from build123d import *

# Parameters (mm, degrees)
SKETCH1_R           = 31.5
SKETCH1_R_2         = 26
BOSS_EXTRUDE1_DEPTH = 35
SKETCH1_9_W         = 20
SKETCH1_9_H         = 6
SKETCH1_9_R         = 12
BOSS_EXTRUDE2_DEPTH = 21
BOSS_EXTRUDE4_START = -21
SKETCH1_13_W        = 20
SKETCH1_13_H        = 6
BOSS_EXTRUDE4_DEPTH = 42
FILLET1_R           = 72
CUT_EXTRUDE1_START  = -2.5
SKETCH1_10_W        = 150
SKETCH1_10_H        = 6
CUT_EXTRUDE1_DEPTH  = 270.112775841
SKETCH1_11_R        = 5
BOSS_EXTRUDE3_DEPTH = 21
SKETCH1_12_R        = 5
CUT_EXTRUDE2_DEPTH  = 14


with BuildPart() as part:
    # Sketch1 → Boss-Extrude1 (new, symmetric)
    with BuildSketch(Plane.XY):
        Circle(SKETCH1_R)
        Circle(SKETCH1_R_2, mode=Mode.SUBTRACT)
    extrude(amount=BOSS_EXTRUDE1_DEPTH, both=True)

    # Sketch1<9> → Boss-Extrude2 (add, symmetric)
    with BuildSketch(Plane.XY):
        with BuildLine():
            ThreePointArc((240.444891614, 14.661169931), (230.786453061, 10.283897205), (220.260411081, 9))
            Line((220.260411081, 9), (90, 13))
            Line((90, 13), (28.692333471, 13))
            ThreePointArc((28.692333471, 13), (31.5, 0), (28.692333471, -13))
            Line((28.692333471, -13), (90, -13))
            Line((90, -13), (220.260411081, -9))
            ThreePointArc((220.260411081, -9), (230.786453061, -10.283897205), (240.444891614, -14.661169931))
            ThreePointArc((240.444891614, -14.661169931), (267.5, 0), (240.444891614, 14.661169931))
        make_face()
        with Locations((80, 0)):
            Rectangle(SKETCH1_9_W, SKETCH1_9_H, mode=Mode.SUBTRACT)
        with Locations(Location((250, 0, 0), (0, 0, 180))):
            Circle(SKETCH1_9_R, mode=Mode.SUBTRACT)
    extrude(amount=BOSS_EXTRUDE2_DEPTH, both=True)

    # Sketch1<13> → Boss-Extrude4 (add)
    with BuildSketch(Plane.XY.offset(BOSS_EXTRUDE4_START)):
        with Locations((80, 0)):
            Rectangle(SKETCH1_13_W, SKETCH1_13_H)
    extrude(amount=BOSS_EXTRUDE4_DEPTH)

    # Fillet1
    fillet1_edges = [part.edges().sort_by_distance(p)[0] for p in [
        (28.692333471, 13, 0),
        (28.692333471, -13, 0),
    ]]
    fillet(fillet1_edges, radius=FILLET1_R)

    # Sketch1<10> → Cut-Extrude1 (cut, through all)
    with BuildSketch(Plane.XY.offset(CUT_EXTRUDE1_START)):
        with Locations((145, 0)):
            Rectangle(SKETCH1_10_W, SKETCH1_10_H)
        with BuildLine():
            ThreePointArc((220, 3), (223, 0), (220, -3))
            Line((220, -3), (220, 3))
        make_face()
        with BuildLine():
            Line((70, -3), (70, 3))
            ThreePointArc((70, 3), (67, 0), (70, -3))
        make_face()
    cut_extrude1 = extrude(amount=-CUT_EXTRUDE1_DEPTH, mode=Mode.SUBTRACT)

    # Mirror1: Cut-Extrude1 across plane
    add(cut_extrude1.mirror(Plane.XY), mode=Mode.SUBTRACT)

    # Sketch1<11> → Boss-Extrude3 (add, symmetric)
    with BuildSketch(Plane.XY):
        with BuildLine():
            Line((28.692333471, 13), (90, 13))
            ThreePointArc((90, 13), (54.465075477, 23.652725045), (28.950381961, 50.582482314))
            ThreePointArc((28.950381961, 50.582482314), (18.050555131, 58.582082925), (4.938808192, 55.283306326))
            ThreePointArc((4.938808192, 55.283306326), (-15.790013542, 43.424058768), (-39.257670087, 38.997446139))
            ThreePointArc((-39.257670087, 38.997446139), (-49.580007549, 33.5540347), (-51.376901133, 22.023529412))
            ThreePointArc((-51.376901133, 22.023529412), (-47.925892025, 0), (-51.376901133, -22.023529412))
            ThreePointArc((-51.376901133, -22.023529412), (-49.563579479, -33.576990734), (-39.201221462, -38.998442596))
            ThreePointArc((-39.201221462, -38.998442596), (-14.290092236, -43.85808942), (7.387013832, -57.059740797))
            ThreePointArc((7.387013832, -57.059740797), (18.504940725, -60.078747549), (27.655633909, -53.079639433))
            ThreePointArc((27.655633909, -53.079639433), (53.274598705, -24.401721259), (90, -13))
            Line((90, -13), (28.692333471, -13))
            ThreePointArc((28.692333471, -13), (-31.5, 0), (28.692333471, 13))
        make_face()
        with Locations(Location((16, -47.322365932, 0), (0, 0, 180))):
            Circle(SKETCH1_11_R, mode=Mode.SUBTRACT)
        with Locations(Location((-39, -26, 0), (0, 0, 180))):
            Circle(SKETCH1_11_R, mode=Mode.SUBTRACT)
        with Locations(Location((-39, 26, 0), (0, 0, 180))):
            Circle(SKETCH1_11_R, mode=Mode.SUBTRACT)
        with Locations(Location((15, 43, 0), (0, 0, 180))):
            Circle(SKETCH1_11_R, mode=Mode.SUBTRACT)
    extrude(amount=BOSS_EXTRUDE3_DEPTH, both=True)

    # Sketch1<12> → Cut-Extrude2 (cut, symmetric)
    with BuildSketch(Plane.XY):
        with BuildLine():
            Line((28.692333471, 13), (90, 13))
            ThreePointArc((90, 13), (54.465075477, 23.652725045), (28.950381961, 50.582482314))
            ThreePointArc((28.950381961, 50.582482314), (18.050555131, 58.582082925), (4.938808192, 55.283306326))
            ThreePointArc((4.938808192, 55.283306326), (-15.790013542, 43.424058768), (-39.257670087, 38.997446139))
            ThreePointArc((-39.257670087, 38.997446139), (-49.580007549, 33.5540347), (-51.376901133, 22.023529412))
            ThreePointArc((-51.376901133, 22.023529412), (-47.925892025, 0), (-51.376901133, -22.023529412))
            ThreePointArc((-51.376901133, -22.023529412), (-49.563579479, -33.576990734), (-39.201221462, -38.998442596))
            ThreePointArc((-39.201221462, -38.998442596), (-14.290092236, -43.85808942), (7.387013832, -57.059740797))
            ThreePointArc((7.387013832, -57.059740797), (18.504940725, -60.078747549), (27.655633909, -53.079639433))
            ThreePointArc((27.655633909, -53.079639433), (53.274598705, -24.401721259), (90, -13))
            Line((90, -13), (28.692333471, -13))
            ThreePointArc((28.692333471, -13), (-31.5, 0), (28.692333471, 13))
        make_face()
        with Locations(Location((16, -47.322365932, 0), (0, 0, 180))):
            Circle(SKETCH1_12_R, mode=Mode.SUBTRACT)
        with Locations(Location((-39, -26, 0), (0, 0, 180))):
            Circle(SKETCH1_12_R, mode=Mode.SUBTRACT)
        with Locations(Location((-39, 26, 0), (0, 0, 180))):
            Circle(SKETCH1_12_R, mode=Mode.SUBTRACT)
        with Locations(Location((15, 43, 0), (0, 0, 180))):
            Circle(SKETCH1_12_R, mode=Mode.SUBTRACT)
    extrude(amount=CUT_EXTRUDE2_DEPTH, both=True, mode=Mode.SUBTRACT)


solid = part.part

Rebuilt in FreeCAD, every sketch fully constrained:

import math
import FreeCAD as App
import Part
import Sketcher
from FreeCAD import Vector


def edges_at(feature, points):
    """Names of the edges that pass closest to the given points."""
    edges = feature.Shape.Edges
    near = lambda p: min(range(len(edges)), key=lambda i: edges[i].distToShape(Part.Vertex(*p))[0])
    return sorted({f"Edge{near(p) + 1}" for p in points})


def add_polygon(sketch, points):
    """Adds a closed chain of lines whose ends are joined by coincident constraints."""
    first, n = sketch.GeometryCount, len(points)
    for a, b in zip(points, points[1:] + points[:1]):
        sketch.addGeometry(Part.LineSegment(App.Vector(*a, 0), App.Vector(*b, 0)), False)
    for i in range(n):
        sketch.addConstraint(Sketcher.Constraint("Coincident", first + i, 2, first + (i + 1) % n, 1))

doc = App.newDocument("Part")
body = doc.addObject("PartDesign::Body", "Body")

# Sketch on XY plane
sketch1 = doc.addObject("Sketcher::SketchObject", "Sketch")
body.addObject(sketch1)
sketch1.AttachmentSupport = (doc.XY_Plane, [""])
sketch1.MapMode = "FlatFace"
sketch1.addGeometry(Part.Circle(Vector(0, 0, 0), Vector(0, 0, 1), 32), False)
sketch1.addGeometry(Part.Circle(Vector(0, 0, 0), Vector(0, 0, 1), 26), False)
sketch1.addConstraint(Sketcher.Constraint("Coincident", 0, 3, -1, 1))
sketch1.addConstraint(Sketcher.Constraint("Coincident", 1, 3, -1, 1))
sketch1.addConstraint(Sketcher.Constraint("Diameter", 0, 63.0))
sketch1.addConstraint(Sketcher.Constraint("Diameter", 1, 52.0))
pad1 = doc.addObject("PartDesign::Pad", "Pad")
body.addObject(pad1)
pad1.Profile = sketch1
pad1.Length = 70
pad1.Midplane = True

# Sketch on XY plane
sketch2 = doc.addObject("Sketcher::SketchObject", "Sketch001")
body.addObject(sketch2)
sketch2.AttachmentSupport = (doc.XY_Plane, [""])
sketch2.MapMode = "FlatFace"
sketch2.addGeometry(Part.ArcOfCircle(Part.Circle(Vector(221, 44, 0), Vector(0, 0, 1), 35), math.radians(-92), math.radians(-57)), False)  # 0
sketch2.addGeometry(Part.LineSegment(Vector(220, 9, 0), Vector(90, 13, 0)), False)  # 1
sketch2.addGeometry(Part.LineSegment(Vector(90, 13, 0), Vector(29, 13, 0)), False)  # 2
sketch2.addGeometry(Part.ArcOfCircle(Part.Circle(Vector(0, 0, 0), Vector(0, 0, 1), 32), math.radians(-24), math.radians(24)), False)  # 3
sketch2.addGeometry(Part.LineSegment(Vector(29, -13, 0), Vector(90, -13, 0)), False)  # 4
sketch2.addGeometry(Part.LineSegment(Vector(90, -13, 0), Vector(220, -9, 0)), False)  # 5
sketch2.addGeometry(Part.ArcOfCircle(Part.Circle(Vector(221, -44, 0), Vector(0, 0, 1), 35), math.radians(57), math.radians(92)), False)  # 6
sketch2.addGeometry(Part.ArcOfCircle(Part.Circle(Vector(250, 0, 0), Vector(0, 0, 1), 18), math.radians(-123), math.radians(123)), False)  # 7
add_polygon(sketch2, [(90, -3), (70, -3), (70, 3), (90, 3)])  # lines 8-11
sketch2.addGeometry(Part.Circle(Vector(250, 0, 0), Vector(0, 0, 1), 12), False)  # 12
sketch2.addConstraint(Sketcher.Constraint("Tangent", 0, 1, 1, 1))
sketch2.addConstraint(Sketcher.Constraint("Coincident", 1, 2, 2, 1))
sketch2.addConstraint(Sketcher.Constraint("Coincident", 2, 2, 3, 2))
sketch2.addConstraint(Sketcher.Constraint("Coincident", 3, 1, 4, 1))
sketch2.addConstraint(Sketcher.Constraint("Coincident", 4, 2, 5, 1))
sketch2.addConstraint(Sketcher.Constraint("Tangent", 5, 2, 6, 2))
sketch2.addConstraint(Sketcher.Constraint("Tangent", 6, 1, 7, 1))
sketch2.addConstraint(Sketcher.Constraint("Tangent", 7, 2, 0, 2))
sketch2.addConstraint(Sketcher.Constraint("Horizontal", 2))
sketch2.addConstraint(Sketcher.Constraint("Horizontal", 4))
sketch2.addConstraint(Sketcher.Constraint("Horizontal", 8))
sketch2.addConstraint(Sketcher.Constraint("Vertical", 9))
sketch2.addConstraint(Sketcher.Constraint("Horizontal", 10))
sketch2.addConstraint(Sketcher.Constraint("Vertical", 11))
sketch2.addConstraint(Sketcher.Constraint("Coincident", 3, 3, -1, 1))
sketch2.addConstraint(Sketcher.Constraint("Coincident", 12, 3, 7, 3))
sketch2.addConstraint(Sketcher.Constraint("Equal", 0, 6))
sketch2.addConstraint(Sketcher.Constraint("Symmetric", 0, 3, 6, 3, -1))
sketch2.addConstraint(Sketcher.Constraint("Symmetric", 1, 2, 4, 2, -1))
sketch2.addConstraint(Sketcher.Constraint("Vertical", 4, 2, 10, 2))
sketch2.addConstraint(Sketcher.Constraint("Diameter", 12, 24.0))
sketch2.addConstraint(Sketcher.Constraint("Radius", 0, 35.0))
sketch2.addConstraint(Sketcher.Constraint("Radius", 3, 31.5))
sketch2.addConstraint(Sketcher.Constraint("Radius", 7, 17.5))
sketch2.addConstraint(Sketcher.Constraint("DistanceX", 8, 2, 8, 1, 20.0))
sketch2.addConstraint(Sketcher.Constraint("DistanceY", 9, 1, 9, 2, 6.0))
sketch2.addConstraint(Sketcher.Constraint("DistanceX", -1, 1, 7, 3, 250.0))
sketch2.addConstraint(Sketcher.Constraint("DistanceY", -1, 1, 0, 1, 9.0))
sketch2.addConstraint(Sketcher.Constraint("DistanceX", -1, 1, 1, 2, 90.0))
sketch2.addConstraint(Sketcher.Constraint("DistanceY", -1, 1, 1, 2, 13.0))
sketch2.addConstraint(Sketcher.Constraint("DistanceY", 8, 2, -1, 1, 3.0))
pad2 = doc.addObject("PartDesign::Pad", "Pad001")
body.addObject(pad2)
pad2.Profile = sketch2
pad2.Length = 42
pad2.Midplane = True

# Sketch on XY plane
sketch3 = doc.addObject("Sketcher::SketchObject", "Sketch002")
body.addObject(sketch3)
sketch3.AttachmentSupport = (doc.XY_Plane, [""])
sketch3.MapMode = "FlatFace"
sketch3.AttachmentOffset = App.Placement(Vector(0, 0, -21), App.Rotation())
add_polygon(sketch3, [(70, 3), (70, -3), (90, -3), (90, 3)])  # lines 0-3
sketch3.addConstraint(Sketcher.Constraint("Vertical", 0))
sketch3.addConstraint(Sketcher.Constraint("Horizontal", 1))
sketch3.addConstraint(Sketcher.Constraint("Vertical", 2))
sketch3.addConstraint(Sketcher.Constraint("Horizontal", 3))
sketch3.addConstraint(Sketcher.Constraint("DistanceX", 1, 1, 1, 2, 20.0))
sketch3.addConstraint(Sketcher.Constraint("DistanceY", 0, 2, 0, 1, 6.0))
sketch3.addConstraint(Sketcher.Constraint("DistanceX", -1, 1, 0, 2, 70.0))
sketch3.addConstraint(Sketcher.Constraint("DistanceY", 0, 2, -1, 1, 3.0))
pad3 = doc.addObject("PartDesign::Pad", "Pad002")
body.addObject(pad3)
pad3.Profile = sketch3
pad3.Length = 42
doc.recompute()

fillet = doc.addObject("PartDesign::Fillet", "Fillet")
body.addObject(fillet)
fillet.Base = (pad3, edges_at(pad3, [(28.692, 13, 0), (28.692, -13, 0)]))
fillet.Radius = 72

# Sketch on XY plane
sketch4 = doc.addObject("Sketcher::SketchObject", "Sketch003")
body.addObject(sketch4)
sketch4.AttachmentSupport = (doc.XY_Plane, [""])
sketch4.MapMode = "FlatFace"
sketch4.AttachmentOffset = App.Placement(Vector(0, 0, -2.5), App.Rotation())
sketch4.addGeometry(Part.LineSegment(Vector(70, -3, 0), Vector(220, -3, 0)), False)
sketch4.addGeometry(Part.ArcOfCircle(Part.Circle(Vector(220, 0, 0), Vector(0, 0, 1), 3), math.radians(-90), math.radians(90)), False)
sketch4.addGeometry(Part.LineSegment(Vector(220, 3, 0), Vector(70, 3, 0)), False)
sketch4.addGeometry(Part.ArcOfCircle(Part.Circle(Vector(70, 0, 0), Vector(0, 0, 1), 3), math.radians(90), math.radians(270)), False)
sketch4.addConstraint(Sketcher.Constraint("Tangent", 0, 2, 1, 1))
sketch4.addConstraint(Sketcher.Constraint("Tangent", 1, 2, 2, 1))
sketch4.addConstraint(Sketcher.Constraint("Tangent", 2, 2, 3, 1))
sketch4.addConstraint(Sketcher.Constraint("Tangent", 3, 2, 0, 1))
sketch4.addConstraint(Sketcher.Constraint("Horizontal", 0))
sketch4.addConstraint(Sketcher.Constraint("Horizontal", 2))
sketch4.addConstraint(Sketcher.Constraint("PointOnObject", 1, 3, -1))
sketch4.addConstraint(Sketcher.Constraint("Radius", 1, 3.0))
sketch4.addConstraint(Sketcher.Constraint("DistanceX", 0, 1, 0, 2, 150.0))
sketch4.addConstraint(Sketcher.Constraint("DistanceX", -1, 1, 1, 3, 220.0))
pocket1 = doc.addObject("PartDesign::Pocket", "Pocket")
body.addObject(pocket1)
pocket1.Profile = sketch4
pocket1.Type = "ThroughAll"
doc.recompute()

mirrored = doc.addObject("PartDesign::Mirrored", "Mirrored")
body.addObject(mirrored)
mirrored.Originals = [pocket1]
mirrored.MirrorPlane = (doc.XY_Plane, [""])
body.Tip = mirrored

# Sketch on XY plane
sketch5 = doc.addObject("Sketcher::SketchObject", "Sketch004")
body.addObject(sketch5)
sketch5.AttachmentSupport = (doc.XY_Plane, [""])
sketch5.MapMode = "FlatFace"
sketch5.addGeometry(Part.LineSegment(Vector(29, 13, 0), Vector(90, 13, 0)), False)
sketch5.addGeometry(Part.ArcOfCircle(Part.Circle(Vector(92, 85, 0), Vector(0, 0, 1), 72), math.radians(-151), math.radians(-92)), False)
sketch5.addGeometry(Part.ArcOfCircle(Part.Circle(Vector(15, 43, 0), Vector(0, 0, 1), 16), math.radians(29), math.radians(129)), False)
sketch5.addGeometry(Part.ArcOfCircle(Part.Circle(Vector(-41, 111, 0), Vector(0, 0, 1), 72), math.radians(-89), math.radians(-51)), False)
sketch5.addGeometry(Part.ArcOfCircle(Part.Circle(Vector(-39, 26, 0), Vector(0, 0, 1), 13), math.radians(91), math.radians(198)), False)
sketch5.addGeometry(Part.ArcOfCircle(Part.Circle(Vector(-120, 0, 0), Vector(0, 0, 1), 72), math.radians(-18), math.radians(18)), False)
sketch5.addGeometry(Part.ArcOfCircle(Part.Circle(Vector(-39, -26, 0), Vector(0, 0, 1), 13), math.radians(162), math.radians(269)), False)
sketch5.addGeometry(Part.ArcOfCircle(Part.Circle(Vector(-40, -111, 0), Vector(0, 0, 1), 72), math.radians(49), math.radians(89)), False)
sketch5.addGeometry(Part.ArcOfCircle(Part.Circle(Vector(16, -47, 0), Vector(0, 0, 1), 13), math.radians(-131), math.radians(-26)), False)
sketch5.addGeometry(Part.ArcOfCircle(Part.Circle(Vector(92, -85, 0), Vector(0, 0, 1), 72), math.radians(92), math.radians(154)), False)
sketch5.addGeometry(Part.LineSegment(Vector(90, -13, 0), Vector(29, -13, 0)), False)
sketch5.addGeometry(Part.ArcOfCircle(Part.Circle(Vector(0, 0, 0), Vector(0, 0, 1), 32), math.radians(24), math.radians(336)), False)
sketch5.addGeometry(Part.Circle(Vector(-39, -26, 0), Vector(0, 0, 1), 5), False)
sketch5.addGeometry(Part.Circle(Vector(16, -47, 0), Vector(0, 0, 1), 5), False)
sketch5.addGeometry(Part.Circle(Vector(-39, 26, 0), Vector(0, 0, 1), 5), False)
sketch5.addGeometry(Part.Circle(Vector(15, 43, 0), Vector(0, 0, 1), 5), False)
sketch5.addConstraint(Sketcher.Constraint("Coincident", 0, 2, 1, 2))
sketch5.addConstraint(Sketcher.Constraint("Tangent", 1, 1, 2, 1))
sketch5.addConstraint(Sketcher.Constraint("Tangent", 2, 2, 3, 2))
sketch5.addConstraint(Sketcher.Constraint("Tangent", 3, 1, 4, 1))
sketch5.addConstraint(Sketcher.Constraint("Tangent", 4, 2, 5, 2))
sketch5.addConstraint(Sketcher.Constraint("Tangent", 5, 1, 6, 1))
sketch5.addConstraint(Sketcher.Constraint("Tangent", 6, 2, 7, 2))
sketch5.addConstraint(Sketcher.Constraint("Tangent", 7, 1, 8, 1))
sketch5.addConstraint(Sketcher.Constraint("Tangent", 8, 2, 9, 2))
sketch5.addConstraint(Sketcher.Constraint("Coincident", 9, 1, 10, 1))
sketch5.addConstraint(Sketcher.Constraint("Coincident", 10, 2, 11, 2))
sketch5.addConstraint(Sketcher.Constraint("Coincident", 11, 1, 0, 1))
sketch5.addConstraint(Sketcher.Constraint("Horizontal", 0))
sketch5.addConstraint(Sketcher.Constraint("Horizontal", 10))
sketch5.addConstraint(Sketcher.Constraint("Coincident", 11, 3, -1, 1))
sketch5.addConstraint(Sketcher.Constraint("Coincident", 12, 3, 6, 3))
sketch5.addConstraint(Sketcher.Constraint("Coincident", 13, 3, 8, 3))
sketch5.addConstraint(Sketcher.Constraint("Coincident", 14, 3, 4, 3))
sketch5.addConstraint(Sketcher.Constraint("Coincident", 15, 3, 2, 3))
sketch5.addConstraint(Sketcher.Constraint("Equal", 1, 3))
sketch5.addConstraint(Sketcher.Constraint("Equal", 3, 5))
sketch5.addConstraint(Sketcher.Constraint("Equal", 4, 6))
sketch5.addConstraint(Sketcher.Constraint("Equal", 5, 7))
sketch5.addConstraint(Sketcher.Constraint("Equal", 6, 8))
sketch5.addConstraint(Sketcher.Constraint("Equal", 7, 9))
sketch5.addConstraint(Sketcher.Constraint("Equal", 12, 13))
sketch5.addConstraint(Sketcher.Constraint("Equal", 13, 14))
sketch5.addConstraint(Sketcher.Constraint("Equal", 14, 15))
sketch5.addConstraint(Sketcher.Constraint("Symmetric", 4, 3, 6, 3, -1))
sketch5.addConstraint(Sketcher.Constraint("Symmetric", 1, 3, 9, 3, -1))
sketch5.addConstraint(Sketcher.Constraint("Vertical", 0, 2, 9, 1))
sketch5.addConstraint(Sketcher.Constraint("Diameter", 12, 10.0))
sketch5.addConstraint(Sketcher.Constraint("Radius", 1, 72.0))
sketch5.addConstraint(Sketcher.Constraint("Radius", 4, 13.0))
sketch5.addConstraint(Sketcher.Constraint("Radius", 11, 31.5))
sketch5.addConstraint(Sketcher.Constraint("DistanceX", -1, 1, 2, 3, 15.0))
sketch5.addConstraint(Sketcher.Constraint("DistanceY", -1, 1, 2, 3, 43.0))
sketch5.addConstraint(Sketcher.Constraint("DistanceX", 4, 3, -1, 1, 39.0))
sketch5.addConstraint(Sketcher.Constraint("DistanceY", -1, 1, 4, 3, 26.0))
sketch5.addConstraint(Sketcher.Constraint("DistanceX", -1, 1, 8, 3, 16.0))
sketch5.addConstraint(Sketcher.Constraint("DistanceX", -1, 1, 0, 2, 90.0))
sketch5.addConstraint(Sketcher.Constraint("DistanceY", -1, 1, 0, 2, 13.0))
sketch5.addConstraint(Sketcher.Constraint("Radius", 2, 15.877884))
pad4 = doc.addObject("PartDesign::Pad", "Pad003")
body.addObject(pad4)
pad4.Profile = sketch5
pad4.Length = 42
pad4.Midplane = True

# Sketch on XY plane
sketch6 = doc.addObject("Sketcher::SketchObject", "Sketch005")
body.addObject(sketch6)
sketch6.AttachmentSupport = (doc.XY_Plane, [""])
sketch6.MapMode = "FlatFace"
sketch6.addGeometry(Part.LineSegment(Vector(29, 13, 0), Vector(90, 13, 0)), False)
sketch6.addGeometry(Part.ArcOfCircle(Part.Circle(Vector(92, 85, 0), Vector(0, 0, 1), 72), math.radians(-151), math.radians(-92)), False)
sketch6.addGeometry(Part.ArcOfCircle(Part.Circle(Vector(15, 43, 0), Vector(0, 0, 1), 16), math.radians(29), math.radians(129)), False)
sketch6.addGeometry(Part.ArcOfCircle(Part.Circle(Vector(-41, 111, 0), Vector(0, 0, 1), 72), math.radians(-89), math.radians(-51)), False)
sketch6.addGeometry(Part.ArcOfCircle(Part.Circle(Vector(-39, 26, 0), Vector(0, 0, 1), 13), math.radians(91), math.radians(198)), False)
sketch6.addGeometry(Part.ArcOfCircle(Part.Circle(Vector(-120, 0, 0), Vector(0, 0, 1), 72), math.radians(-18), math.radians(18)), False)
sketch6.addGeometry(Part.ArcOfCircle(Part.Circle(Vector(-39, -26, 0), Vector(0, 0, 1), 13), math.radians(162), math.radians(269)), False)
sketch6.addGeometry(Part.ArcOfCircle(Part.Circle(Vector(-40, -111, 0), Vector(0, 0, 1), 72), math.radians(49), math.radians(89)), False)
sketch6.addGeometry(Part.ArcOfCircle(Part.Circle(Vector(16, -47, 0), Vector(0, 0, 1), 13), math.radians(-131), math.radians(-26)), False)
sketch6.addGeometry(Part.ArcOfCircle(Part.Circle(Vector(92, -85, 0), Vector(0, 0, 1), 72), math.radians(92), math.radians(154)), False)
sketch6.addGeometry(Part.LineSegment(Vector(90, -13, 0), Vector(29, -13, 0)), False)
sketch6.addGeometry(Part.ArcOfCircle(Part.Circle(Vector(0, 0, 0), Vector(0, 0, 1), 32), math.radians(24), math.radians(336)), False)
sketch6.addGeometry(Part.Circle(Vector(-39, -26, 0), Vector(0, 0, 1), 5), False)
sketch6.addGeometry(Part.Circle(Vector(16, -47, 0), Vector(0, 0, 1), 5), False)
sketch6.addGeometry(Part.Circle(Vector(-39, 26, 0), Vector(0, 0, 1), 5), False)
sketch6.addGeometry(Part.Circle(Vector(15, 43, 0), Vector(0, 0, 1), 5), False)
sketch6.addConstraint(Sketcher.Constraint("Coincident", 0, 2, 1, 2))
sketch6.addConstraint(Sketcher.Constraint("Tangent", 1, 1, 2, 1))
sketch6.addConstraint(Sketcher.Constraint("Tangent", 2, 2, 3, 2))
sketch6.addConstraint(Sketcher.Constraint("Tangent", 3, 1, 4, 1))
sketch6.addConstraint(Sketcher.Constraint("Tangent", 4, 2, 5, 2))
sketch6.addConstraint(Sketcher.Constraint("Tangent", 5, 1, 6, 1))
sketch6.addConstraint(Sketcher.Constraint("Tangent", 6, 2, 7, 2))
sketch6.addConstraint(Sketcher.Constraint("Tangent", 7, 1, 8, 1))
sketch6.addConstraint(Sketcher.Constraint("Tangent", 8, 2, 9, 2))
sketch6.addConstraint(Sketcher.Constraint("Coincident", 9, 1, 10, 1))
sketch6.addConstraint(Sketcher.Constraint("Coincident", 10, 2, 11, 2))
sketch6.addConstraint(Sketcher.Constraint("Coincident", 11, 1, 0, 1))
sketch6.addConstraint(Sketcher.Constraint("Horizontal", 0))
sketch6.addConstraint(Sketcher.Constraint("Horizontal", 10))
sketch6.addConstraint(Sketcher.Constraint("Coincident", 11, 3, -1, 1))
sketch6.addConstraint(Sketcher.Constraint("Coincident", 12, 3, 6, 3))
sketch6.addConstraint(Sketcher.Constraint("Coincident", 13, 3, 8, 3))
sketch6.addConstraint(Sketcher.Constraint("Coincident", 14, 3, 4, 3))
sketch6.addConstraint(Sketcher.Constraint("Coincident", 15, 3, 2, 3))
sketch6.addConstraint(Sketcher.Constraint("Equal", 1, 3))
sketch6.addConstraint(Sketcher.Constraint("Equal", 3, 5))
sketch6.addConstraint(Sketcher.Constraint("Equal", 4, 6))
sketch6.addConstraint(Sketcher.Constraint("Equal", 5, 7))
sketch6.addConstraint(Sketcher.Constraint("Equal", 6, 8))
sketch6.addConstraint(Sketcher.Constraint("Equal", 7, 9))
sketch6.addConstraint(Sketcher.Constraint("Equal", 12, 13))
sketch6.addConstraint(Sketcher.Constraint("Equal", 13, 14))
sketch6.addConstraint(Sketcher.Constraint("Equal", 14, 15))
sketch6.addConstraint(Sketcher.Constraint("Symmetric", 4, 3, 6, 3, -1))
sketch6.addConstraint(Sketcher.Constraint("Symmetric", 1, 3, 9, 3, -1))
sketch6.addConstraint(Sketcher.Constraint("Vertical", 0, 2, 9, 1))
sketch6.addConstraint(Sketcher.Constraint("Diameter", 12, 10.0))
sketch6.addConstraint(Sketcher.Constraint("Radius", 1, 72.0))
sketch6.addConstraint(Sketcher.Constraint("Radius", 4, 13.0))
sketch6.addConstraint(Sketcher.Constraint("Radius", 11, 31.5))
sketch6.addConstraint(Sketcher.Constraint("DistanceX", -1, 1, 2, 3, 15.0))
sketch6.addConstraint(Sketcher.Constraint("DistanceY", -1, 1, 2, 3, 43.0))
sketch6.addConstraint(Sketcher.Constraint("DistanceX", 4, 3, -1, 1, 39.0))
sketch6.addConstraint(Sketcher.Constraint("DistanceY", -1, 1, 4, 3, 26.0))
sketch6.addConstraint(Sketcher.Constraint("DistanceX", -1, 1, 8, 3, 16.0))
sketch6.addConstraint(Sketcher.Constraint("DistanceX", -1, 1, 0, 2, 90.0))
sketch6.addConstraint(Sketcher.Constraint("DistanceY", -1, 1, 0, 2, 13.0))
sketch6.addConstraint(Sketcher.Constraint("Radius", 2, 15.877884))
pocket2 = doc.addObject("PartDesign::Pocket", "Pocket001")
body.addObject(pocket2)
pocket2.Profile = sketch6
pocket2.Length = 28
pocket2.Midplane = True

doc.recompute()
